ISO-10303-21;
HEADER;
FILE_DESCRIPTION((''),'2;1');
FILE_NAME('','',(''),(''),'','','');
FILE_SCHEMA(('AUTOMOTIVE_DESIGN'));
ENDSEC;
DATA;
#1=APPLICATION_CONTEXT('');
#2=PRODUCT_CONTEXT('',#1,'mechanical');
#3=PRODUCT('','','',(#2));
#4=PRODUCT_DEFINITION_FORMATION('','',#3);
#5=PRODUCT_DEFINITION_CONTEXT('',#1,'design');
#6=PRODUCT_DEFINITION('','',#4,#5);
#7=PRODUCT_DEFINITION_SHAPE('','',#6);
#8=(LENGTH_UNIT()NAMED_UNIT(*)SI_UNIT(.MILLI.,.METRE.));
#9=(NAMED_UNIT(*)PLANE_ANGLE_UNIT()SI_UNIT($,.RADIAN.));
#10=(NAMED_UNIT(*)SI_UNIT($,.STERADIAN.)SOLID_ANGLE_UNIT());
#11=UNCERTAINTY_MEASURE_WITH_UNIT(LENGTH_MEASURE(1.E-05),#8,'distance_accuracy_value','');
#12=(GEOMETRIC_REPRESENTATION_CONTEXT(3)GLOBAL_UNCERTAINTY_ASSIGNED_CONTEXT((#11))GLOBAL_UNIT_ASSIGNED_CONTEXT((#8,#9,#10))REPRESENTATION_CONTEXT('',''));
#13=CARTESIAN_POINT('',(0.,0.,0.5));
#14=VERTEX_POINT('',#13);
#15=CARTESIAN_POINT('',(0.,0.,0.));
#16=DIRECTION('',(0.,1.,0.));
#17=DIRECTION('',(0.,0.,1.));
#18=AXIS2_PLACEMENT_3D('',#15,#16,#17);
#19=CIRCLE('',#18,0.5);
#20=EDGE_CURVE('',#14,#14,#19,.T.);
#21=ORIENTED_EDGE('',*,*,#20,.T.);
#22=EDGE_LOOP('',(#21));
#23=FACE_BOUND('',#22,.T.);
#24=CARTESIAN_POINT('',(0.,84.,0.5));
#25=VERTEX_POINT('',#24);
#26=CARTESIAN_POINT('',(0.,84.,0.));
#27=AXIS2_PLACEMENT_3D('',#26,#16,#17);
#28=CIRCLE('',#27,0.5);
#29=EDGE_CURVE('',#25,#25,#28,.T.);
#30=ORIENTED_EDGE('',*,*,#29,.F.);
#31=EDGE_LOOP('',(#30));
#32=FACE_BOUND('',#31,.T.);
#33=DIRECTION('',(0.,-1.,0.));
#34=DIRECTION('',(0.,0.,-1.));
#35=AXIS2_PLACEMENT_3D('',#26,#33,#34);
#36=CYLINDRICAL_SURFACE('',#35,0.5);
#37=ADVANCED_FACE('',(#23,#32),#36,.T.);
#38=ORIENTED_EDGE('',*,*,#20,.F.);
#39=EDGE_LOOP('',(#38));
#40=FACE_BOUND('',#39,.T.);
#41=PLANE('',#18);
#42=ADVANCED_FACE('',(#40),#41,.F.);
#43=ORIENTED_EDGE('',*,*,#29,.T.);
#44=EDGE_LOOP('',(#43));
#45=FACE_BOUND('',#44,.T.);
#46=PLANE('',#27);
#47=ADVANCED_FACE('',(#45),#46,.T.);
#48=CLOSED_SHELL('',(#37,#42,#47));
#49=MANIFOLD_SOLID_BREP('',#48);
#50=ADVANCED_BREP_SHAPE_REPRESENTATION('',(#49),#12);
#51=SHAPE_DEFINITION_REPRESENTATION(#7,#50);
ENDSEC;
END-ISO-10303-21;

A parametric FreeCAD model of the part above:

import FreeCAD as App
import Part
import Sketcher
from FreeCAD import Vector
Q = App.Units.Quantity

doc = App.newDocument("Part")
body = doc.addObject("PartDesign::Body", "Body")

sketch1 = doc.addObject("Sketcher::SketchObject", "Sketch")
body.addObject(sketch1)
sketch1.AttachmentSupport = (doc.XZ_Plane, [""])
sketch1.MapMode = "FlatFace"
sketch1.addGeometry(Part.Circle(Vector(0, 0, 0), Vector(0, 0, 1), 0.5), False)
sketch1.addConstraint([
    Sketcher.Constraint("Coincident", 0, 3, -1, 1),
    Sketcher.Constraint("Diameter", 0, Q("1 mm")),
])
pad1 = doc.addObject("PartDesign::Pad", "Pad")
body.addObject(pad1)
pad1.Profile = sketch1
pad1.Length = 84
pad1.Reversed = True

doc.recompute()
